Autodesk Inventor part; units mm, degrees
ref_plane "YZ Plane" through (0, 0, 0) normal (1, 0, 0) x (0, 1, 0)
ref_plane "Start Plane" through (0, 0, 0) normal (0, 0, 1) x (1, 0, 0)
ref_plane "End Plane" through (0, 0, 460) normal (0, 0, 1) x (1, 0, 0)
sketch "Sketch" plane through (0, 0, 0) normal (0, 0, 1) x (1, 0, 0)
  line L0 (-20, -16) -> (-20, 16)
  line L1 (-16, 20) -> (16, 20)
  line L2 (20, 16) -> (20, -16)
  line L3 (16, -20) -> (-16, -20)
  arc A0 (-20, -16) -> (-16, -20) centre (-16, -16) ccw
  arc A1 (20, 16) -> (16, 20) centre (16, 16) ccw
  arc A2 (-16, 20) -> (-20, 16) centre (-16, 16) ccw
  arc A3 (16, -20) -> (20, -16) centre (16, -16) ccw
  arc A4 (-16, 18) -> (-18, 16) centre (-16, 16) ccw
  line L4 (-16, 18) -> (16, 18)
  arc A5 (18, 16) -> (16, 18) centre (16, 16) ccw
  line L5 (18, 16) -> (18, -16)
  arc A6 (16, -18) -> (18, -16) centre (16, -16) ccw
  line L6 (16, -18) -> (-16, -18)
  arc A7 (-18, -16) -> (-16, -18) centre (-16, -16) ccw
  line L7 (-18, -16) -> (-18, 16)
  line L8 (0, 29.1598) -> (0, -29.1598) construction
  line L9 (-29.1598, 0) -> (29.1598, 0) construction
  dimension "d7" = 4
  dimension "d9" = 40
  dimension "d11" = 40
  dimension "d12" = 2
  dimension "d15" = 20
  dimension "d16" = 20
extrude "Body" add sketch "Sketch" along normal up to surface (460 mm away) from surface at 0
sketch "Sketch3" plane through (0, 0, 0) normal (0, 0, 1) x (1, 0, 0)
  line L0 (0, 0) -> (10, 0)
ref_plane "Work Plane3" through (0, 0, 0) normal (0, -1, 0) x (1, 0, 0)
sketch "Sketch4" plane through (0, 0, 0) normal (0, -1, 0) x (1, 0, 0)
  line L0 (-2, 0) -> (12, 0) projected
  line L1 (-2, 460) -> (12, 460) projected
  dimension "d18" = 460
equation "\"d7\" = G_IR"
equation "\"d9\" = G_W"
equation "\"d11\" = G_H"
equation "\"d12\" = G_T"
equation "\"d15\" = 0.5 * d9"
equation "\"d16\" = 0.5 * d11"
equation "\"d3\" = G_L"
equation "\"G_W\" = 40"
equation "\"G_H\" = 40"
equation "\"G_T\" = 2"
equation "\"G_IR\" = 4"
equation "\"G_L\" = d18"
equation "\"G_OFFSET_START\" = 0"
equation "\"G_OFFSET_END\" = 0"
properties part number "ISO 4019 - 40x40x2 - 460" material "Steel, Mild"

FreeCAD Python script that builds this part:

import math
import FreeCAD as App
import Part
import Sketcher
Q = App.Units.Quantity

doc = App.newDocument("Part")
body = doc.addObject("PartDesign::Body", "Body")

# Sketch on XY plane
sketch1 = doc.addObject("Sketcher::SketchObject", "Sketch")
body.addObject(sketch1)
sketch1.AttachmentSupport = (doc.XY_Plane, [""])
sketch1.MapMode = "FlatFace"
sketch1.addGeometry(Part.LineSegment(App.Vector(-20, 16, 0), App.Vector(-20, -16, 0)), False)
sketch1.addGeometry(Part.ArcOfCircle(Part.Circle(App.Vector(-16, -16, 0), App.Vector(0, 0, 1), 4), math.radians(180), math.radians(270)), False)
sketch1.addGeometry(Part.LineSegment(App.Vector(-16, -20, 0), App.Vector(16, -20, 0)), False)
sketch1.addGeometry(Part.ArcOfCircle(Part.Circle(App.Vector(16, -16, 0), App.Vector(0, 0, 1), 4), math.radians(-90), math.radians(0)), False)
sketch1.addGeometry(Part.LineSegment(App.Vector(20, -16, 0), App.Vector(20, 16, 0)), False)
sketch1.addGeometry(Part.ArcOfCircle(Part.Circle(App.Vector(16, 16, 0), App.Vector(0, 0, 1), 4), math.radians(0), math.radians(90)), False)
sketch1.addGeometry(Part.LineSegment(App.Vector(16, 20, 0), App.Vector(-16, 20, 0)), False)
sketch1.addGeometry(Part.ArcOfCircle(Part.Circle(App.Vector(-16, 16, 0), App.Vector(0, 0, 1), 4), math.radians(90), math.radians(180)), False)
sketch1.addGeometry(Part.ArcOfCircle(Part.Circle(App.Vector(-16, 16, 0), App.Vector(0, 0, 1), 2), math.radians(90), math.radians(180)), False)
sketch1.addGeometry(Part.LineSegment(App.Vector(-16, 18, 0), App.Vector(16, 18, 0)), False)
sketch1.addGeometry(Part.ArcOfCircle(Part.Circle(App.Vector(16, 16, 0), App.Vector(0, 0, 1), 2), math.radians(0), math.radians(90)), False)
sketch1.addGeometry(Part.LineSegment(App.Vector(18, 16, 0), App.Vector(18, -16, 0)), False)
sketch1.addGeometry(Part.ArcOfCircle(Part.Circle(App.Vector(16, -16, 0), App.Vector(0, 0, 1), 2), math.radians(-90), math.radians(0)), False)
sketch1.addGeometry(Part.LineSegment(App.Vector(16, -18, 0), App.Vector(-16, -18, 0)), False)
sketch1.addGeometry(Part.ArcOfCircle(Part.Circle(App.Vector(-16, -16, 0), App.Vector(0, 0, 1), 2), math.radians(180), math.radians(270)), False)
sketch1.addGeometry(Part.LineSegment(App.Vector(-18, -16, 0), App.Vector(-18, 16, 0)), False)
sketch1.addConstraint(Sketcher.Constraint("Tangent", 0, 2, 1, 1))
sketch1.addConstraint(Sketcher.Constraint("Tangent", 1, 2, 2, 1))
sketch1.addConstraint(Sketcher.Constraint("Tangent", 2, 2, 3, 1))
sketch1.addConstraint(Sketcher.Constraint("Tangent", 3, 2, 4, 1))
sketch1.addConstraint(Sketcher.Constraint("Tangent", 4, 2, 5, 1))
sketch1.addConstraint(Sketcher.Constraint("Tangent", 5, 2, 6, 1))
sketch1.addConstraint(Sketcher.Constraint("Tangent", 6, 2, 7, 1))
sketch1.addConstraint(Sketcher.Constraint("Tangent", 7, 2, 0, 1))
sketch1.addConstraint(Sketcher.Constraint("Tangent", 8, 1, 9, 1))
sketch1.addConstraint(Sketcher.Constraint("Tangent", 9, 2, 10, 2))
sketch1.addConstraint(Sketcher.Constraint("Tangent", 10, 1, 11, 1))
sketch1.addConstraint(Sketcher.Constraint("Tangent", 11, 2, 12, 2))
sketch1.addConstraint(Sketcher.Constraint("Tangent", 12, 1, 13, 1))
sketch1.addConstraint(Sketcher.Constraint("Tangent", 13, 2, 14, 2))
sketch1.addConstraint(Sketcher.Constraint("Tangent", 14, 1, 15, 1))
sketch1.addConstraint(Sketcher.Constraint("Tangent", 15, 2, 8, 2))
sketch1.addConstraint(Sketcher.Constraint("Vertical", 0))
sketch1.addConstraint(Sketcher.Constraint("Horizontal", 2))
sketch1.addConstraint(Sketcher.Constraint("Vertical", 4))
sketch1.addConstraint(Sketcher.Constraint("Horizontal", 6))
sketch1.addConstraint(Sketcher.Constraint("Horizontal", 9))
sketch1.addConstraint(Sketcher.Constraint("Vertical", 11))
sketch1.addConstraint(Sketcher.Constraint("Horizontal", 13))
sketch1.addConstraint(Sketcher.Constraint("Vertical", 15))
sketch1.addConstraint(Sketcher.Constraint("Coincident", 8, 3, 7, 3))
sketch1.addConstraint(Sketcher.Constraint("Coincident", 10, 3, 5, 3))
sketch1.addConstraint(Sketcher.Constraint("Coincident", 12, 3, 3, 3))
sketch1.addConstraint(Sketcher.Constraint("Equal", 1, 3))
sketch1.addConstraint(Sketcher.Constraint("Equal", 3, 5))
sketch1.addConstraint(Sketcher.Constraint("Equal", 5, 7))
sketch1.addConstraint(Sketcher.Constraint("Equal", 12, 14))
sketch1.addConstraint(Sketcher.Constraint("Symmetric", 1, 3, 5, 3, -1, 1))
sketch1.addConstraint(Sketcher.Constraint("Equal", 13, 0))
sketch1.addConstraint(Sketcher.Constraint("Radius", 1, Q("4 mm")))
sketch1.addConstraint(Sketcher.Constraint("Radius", 8, Q("2 mm")))
sketch1.addConstraint(Sketcher.Constraint("DistanceX", 0, 2, -1, 1, Q("20 mm")))
pad1 = doc.addObject("PartDesign::Pad", "Pad")
body.addObject(pad1)
pad1.Profile = sketch1
pad1.Length = 460

doc.recompute()
